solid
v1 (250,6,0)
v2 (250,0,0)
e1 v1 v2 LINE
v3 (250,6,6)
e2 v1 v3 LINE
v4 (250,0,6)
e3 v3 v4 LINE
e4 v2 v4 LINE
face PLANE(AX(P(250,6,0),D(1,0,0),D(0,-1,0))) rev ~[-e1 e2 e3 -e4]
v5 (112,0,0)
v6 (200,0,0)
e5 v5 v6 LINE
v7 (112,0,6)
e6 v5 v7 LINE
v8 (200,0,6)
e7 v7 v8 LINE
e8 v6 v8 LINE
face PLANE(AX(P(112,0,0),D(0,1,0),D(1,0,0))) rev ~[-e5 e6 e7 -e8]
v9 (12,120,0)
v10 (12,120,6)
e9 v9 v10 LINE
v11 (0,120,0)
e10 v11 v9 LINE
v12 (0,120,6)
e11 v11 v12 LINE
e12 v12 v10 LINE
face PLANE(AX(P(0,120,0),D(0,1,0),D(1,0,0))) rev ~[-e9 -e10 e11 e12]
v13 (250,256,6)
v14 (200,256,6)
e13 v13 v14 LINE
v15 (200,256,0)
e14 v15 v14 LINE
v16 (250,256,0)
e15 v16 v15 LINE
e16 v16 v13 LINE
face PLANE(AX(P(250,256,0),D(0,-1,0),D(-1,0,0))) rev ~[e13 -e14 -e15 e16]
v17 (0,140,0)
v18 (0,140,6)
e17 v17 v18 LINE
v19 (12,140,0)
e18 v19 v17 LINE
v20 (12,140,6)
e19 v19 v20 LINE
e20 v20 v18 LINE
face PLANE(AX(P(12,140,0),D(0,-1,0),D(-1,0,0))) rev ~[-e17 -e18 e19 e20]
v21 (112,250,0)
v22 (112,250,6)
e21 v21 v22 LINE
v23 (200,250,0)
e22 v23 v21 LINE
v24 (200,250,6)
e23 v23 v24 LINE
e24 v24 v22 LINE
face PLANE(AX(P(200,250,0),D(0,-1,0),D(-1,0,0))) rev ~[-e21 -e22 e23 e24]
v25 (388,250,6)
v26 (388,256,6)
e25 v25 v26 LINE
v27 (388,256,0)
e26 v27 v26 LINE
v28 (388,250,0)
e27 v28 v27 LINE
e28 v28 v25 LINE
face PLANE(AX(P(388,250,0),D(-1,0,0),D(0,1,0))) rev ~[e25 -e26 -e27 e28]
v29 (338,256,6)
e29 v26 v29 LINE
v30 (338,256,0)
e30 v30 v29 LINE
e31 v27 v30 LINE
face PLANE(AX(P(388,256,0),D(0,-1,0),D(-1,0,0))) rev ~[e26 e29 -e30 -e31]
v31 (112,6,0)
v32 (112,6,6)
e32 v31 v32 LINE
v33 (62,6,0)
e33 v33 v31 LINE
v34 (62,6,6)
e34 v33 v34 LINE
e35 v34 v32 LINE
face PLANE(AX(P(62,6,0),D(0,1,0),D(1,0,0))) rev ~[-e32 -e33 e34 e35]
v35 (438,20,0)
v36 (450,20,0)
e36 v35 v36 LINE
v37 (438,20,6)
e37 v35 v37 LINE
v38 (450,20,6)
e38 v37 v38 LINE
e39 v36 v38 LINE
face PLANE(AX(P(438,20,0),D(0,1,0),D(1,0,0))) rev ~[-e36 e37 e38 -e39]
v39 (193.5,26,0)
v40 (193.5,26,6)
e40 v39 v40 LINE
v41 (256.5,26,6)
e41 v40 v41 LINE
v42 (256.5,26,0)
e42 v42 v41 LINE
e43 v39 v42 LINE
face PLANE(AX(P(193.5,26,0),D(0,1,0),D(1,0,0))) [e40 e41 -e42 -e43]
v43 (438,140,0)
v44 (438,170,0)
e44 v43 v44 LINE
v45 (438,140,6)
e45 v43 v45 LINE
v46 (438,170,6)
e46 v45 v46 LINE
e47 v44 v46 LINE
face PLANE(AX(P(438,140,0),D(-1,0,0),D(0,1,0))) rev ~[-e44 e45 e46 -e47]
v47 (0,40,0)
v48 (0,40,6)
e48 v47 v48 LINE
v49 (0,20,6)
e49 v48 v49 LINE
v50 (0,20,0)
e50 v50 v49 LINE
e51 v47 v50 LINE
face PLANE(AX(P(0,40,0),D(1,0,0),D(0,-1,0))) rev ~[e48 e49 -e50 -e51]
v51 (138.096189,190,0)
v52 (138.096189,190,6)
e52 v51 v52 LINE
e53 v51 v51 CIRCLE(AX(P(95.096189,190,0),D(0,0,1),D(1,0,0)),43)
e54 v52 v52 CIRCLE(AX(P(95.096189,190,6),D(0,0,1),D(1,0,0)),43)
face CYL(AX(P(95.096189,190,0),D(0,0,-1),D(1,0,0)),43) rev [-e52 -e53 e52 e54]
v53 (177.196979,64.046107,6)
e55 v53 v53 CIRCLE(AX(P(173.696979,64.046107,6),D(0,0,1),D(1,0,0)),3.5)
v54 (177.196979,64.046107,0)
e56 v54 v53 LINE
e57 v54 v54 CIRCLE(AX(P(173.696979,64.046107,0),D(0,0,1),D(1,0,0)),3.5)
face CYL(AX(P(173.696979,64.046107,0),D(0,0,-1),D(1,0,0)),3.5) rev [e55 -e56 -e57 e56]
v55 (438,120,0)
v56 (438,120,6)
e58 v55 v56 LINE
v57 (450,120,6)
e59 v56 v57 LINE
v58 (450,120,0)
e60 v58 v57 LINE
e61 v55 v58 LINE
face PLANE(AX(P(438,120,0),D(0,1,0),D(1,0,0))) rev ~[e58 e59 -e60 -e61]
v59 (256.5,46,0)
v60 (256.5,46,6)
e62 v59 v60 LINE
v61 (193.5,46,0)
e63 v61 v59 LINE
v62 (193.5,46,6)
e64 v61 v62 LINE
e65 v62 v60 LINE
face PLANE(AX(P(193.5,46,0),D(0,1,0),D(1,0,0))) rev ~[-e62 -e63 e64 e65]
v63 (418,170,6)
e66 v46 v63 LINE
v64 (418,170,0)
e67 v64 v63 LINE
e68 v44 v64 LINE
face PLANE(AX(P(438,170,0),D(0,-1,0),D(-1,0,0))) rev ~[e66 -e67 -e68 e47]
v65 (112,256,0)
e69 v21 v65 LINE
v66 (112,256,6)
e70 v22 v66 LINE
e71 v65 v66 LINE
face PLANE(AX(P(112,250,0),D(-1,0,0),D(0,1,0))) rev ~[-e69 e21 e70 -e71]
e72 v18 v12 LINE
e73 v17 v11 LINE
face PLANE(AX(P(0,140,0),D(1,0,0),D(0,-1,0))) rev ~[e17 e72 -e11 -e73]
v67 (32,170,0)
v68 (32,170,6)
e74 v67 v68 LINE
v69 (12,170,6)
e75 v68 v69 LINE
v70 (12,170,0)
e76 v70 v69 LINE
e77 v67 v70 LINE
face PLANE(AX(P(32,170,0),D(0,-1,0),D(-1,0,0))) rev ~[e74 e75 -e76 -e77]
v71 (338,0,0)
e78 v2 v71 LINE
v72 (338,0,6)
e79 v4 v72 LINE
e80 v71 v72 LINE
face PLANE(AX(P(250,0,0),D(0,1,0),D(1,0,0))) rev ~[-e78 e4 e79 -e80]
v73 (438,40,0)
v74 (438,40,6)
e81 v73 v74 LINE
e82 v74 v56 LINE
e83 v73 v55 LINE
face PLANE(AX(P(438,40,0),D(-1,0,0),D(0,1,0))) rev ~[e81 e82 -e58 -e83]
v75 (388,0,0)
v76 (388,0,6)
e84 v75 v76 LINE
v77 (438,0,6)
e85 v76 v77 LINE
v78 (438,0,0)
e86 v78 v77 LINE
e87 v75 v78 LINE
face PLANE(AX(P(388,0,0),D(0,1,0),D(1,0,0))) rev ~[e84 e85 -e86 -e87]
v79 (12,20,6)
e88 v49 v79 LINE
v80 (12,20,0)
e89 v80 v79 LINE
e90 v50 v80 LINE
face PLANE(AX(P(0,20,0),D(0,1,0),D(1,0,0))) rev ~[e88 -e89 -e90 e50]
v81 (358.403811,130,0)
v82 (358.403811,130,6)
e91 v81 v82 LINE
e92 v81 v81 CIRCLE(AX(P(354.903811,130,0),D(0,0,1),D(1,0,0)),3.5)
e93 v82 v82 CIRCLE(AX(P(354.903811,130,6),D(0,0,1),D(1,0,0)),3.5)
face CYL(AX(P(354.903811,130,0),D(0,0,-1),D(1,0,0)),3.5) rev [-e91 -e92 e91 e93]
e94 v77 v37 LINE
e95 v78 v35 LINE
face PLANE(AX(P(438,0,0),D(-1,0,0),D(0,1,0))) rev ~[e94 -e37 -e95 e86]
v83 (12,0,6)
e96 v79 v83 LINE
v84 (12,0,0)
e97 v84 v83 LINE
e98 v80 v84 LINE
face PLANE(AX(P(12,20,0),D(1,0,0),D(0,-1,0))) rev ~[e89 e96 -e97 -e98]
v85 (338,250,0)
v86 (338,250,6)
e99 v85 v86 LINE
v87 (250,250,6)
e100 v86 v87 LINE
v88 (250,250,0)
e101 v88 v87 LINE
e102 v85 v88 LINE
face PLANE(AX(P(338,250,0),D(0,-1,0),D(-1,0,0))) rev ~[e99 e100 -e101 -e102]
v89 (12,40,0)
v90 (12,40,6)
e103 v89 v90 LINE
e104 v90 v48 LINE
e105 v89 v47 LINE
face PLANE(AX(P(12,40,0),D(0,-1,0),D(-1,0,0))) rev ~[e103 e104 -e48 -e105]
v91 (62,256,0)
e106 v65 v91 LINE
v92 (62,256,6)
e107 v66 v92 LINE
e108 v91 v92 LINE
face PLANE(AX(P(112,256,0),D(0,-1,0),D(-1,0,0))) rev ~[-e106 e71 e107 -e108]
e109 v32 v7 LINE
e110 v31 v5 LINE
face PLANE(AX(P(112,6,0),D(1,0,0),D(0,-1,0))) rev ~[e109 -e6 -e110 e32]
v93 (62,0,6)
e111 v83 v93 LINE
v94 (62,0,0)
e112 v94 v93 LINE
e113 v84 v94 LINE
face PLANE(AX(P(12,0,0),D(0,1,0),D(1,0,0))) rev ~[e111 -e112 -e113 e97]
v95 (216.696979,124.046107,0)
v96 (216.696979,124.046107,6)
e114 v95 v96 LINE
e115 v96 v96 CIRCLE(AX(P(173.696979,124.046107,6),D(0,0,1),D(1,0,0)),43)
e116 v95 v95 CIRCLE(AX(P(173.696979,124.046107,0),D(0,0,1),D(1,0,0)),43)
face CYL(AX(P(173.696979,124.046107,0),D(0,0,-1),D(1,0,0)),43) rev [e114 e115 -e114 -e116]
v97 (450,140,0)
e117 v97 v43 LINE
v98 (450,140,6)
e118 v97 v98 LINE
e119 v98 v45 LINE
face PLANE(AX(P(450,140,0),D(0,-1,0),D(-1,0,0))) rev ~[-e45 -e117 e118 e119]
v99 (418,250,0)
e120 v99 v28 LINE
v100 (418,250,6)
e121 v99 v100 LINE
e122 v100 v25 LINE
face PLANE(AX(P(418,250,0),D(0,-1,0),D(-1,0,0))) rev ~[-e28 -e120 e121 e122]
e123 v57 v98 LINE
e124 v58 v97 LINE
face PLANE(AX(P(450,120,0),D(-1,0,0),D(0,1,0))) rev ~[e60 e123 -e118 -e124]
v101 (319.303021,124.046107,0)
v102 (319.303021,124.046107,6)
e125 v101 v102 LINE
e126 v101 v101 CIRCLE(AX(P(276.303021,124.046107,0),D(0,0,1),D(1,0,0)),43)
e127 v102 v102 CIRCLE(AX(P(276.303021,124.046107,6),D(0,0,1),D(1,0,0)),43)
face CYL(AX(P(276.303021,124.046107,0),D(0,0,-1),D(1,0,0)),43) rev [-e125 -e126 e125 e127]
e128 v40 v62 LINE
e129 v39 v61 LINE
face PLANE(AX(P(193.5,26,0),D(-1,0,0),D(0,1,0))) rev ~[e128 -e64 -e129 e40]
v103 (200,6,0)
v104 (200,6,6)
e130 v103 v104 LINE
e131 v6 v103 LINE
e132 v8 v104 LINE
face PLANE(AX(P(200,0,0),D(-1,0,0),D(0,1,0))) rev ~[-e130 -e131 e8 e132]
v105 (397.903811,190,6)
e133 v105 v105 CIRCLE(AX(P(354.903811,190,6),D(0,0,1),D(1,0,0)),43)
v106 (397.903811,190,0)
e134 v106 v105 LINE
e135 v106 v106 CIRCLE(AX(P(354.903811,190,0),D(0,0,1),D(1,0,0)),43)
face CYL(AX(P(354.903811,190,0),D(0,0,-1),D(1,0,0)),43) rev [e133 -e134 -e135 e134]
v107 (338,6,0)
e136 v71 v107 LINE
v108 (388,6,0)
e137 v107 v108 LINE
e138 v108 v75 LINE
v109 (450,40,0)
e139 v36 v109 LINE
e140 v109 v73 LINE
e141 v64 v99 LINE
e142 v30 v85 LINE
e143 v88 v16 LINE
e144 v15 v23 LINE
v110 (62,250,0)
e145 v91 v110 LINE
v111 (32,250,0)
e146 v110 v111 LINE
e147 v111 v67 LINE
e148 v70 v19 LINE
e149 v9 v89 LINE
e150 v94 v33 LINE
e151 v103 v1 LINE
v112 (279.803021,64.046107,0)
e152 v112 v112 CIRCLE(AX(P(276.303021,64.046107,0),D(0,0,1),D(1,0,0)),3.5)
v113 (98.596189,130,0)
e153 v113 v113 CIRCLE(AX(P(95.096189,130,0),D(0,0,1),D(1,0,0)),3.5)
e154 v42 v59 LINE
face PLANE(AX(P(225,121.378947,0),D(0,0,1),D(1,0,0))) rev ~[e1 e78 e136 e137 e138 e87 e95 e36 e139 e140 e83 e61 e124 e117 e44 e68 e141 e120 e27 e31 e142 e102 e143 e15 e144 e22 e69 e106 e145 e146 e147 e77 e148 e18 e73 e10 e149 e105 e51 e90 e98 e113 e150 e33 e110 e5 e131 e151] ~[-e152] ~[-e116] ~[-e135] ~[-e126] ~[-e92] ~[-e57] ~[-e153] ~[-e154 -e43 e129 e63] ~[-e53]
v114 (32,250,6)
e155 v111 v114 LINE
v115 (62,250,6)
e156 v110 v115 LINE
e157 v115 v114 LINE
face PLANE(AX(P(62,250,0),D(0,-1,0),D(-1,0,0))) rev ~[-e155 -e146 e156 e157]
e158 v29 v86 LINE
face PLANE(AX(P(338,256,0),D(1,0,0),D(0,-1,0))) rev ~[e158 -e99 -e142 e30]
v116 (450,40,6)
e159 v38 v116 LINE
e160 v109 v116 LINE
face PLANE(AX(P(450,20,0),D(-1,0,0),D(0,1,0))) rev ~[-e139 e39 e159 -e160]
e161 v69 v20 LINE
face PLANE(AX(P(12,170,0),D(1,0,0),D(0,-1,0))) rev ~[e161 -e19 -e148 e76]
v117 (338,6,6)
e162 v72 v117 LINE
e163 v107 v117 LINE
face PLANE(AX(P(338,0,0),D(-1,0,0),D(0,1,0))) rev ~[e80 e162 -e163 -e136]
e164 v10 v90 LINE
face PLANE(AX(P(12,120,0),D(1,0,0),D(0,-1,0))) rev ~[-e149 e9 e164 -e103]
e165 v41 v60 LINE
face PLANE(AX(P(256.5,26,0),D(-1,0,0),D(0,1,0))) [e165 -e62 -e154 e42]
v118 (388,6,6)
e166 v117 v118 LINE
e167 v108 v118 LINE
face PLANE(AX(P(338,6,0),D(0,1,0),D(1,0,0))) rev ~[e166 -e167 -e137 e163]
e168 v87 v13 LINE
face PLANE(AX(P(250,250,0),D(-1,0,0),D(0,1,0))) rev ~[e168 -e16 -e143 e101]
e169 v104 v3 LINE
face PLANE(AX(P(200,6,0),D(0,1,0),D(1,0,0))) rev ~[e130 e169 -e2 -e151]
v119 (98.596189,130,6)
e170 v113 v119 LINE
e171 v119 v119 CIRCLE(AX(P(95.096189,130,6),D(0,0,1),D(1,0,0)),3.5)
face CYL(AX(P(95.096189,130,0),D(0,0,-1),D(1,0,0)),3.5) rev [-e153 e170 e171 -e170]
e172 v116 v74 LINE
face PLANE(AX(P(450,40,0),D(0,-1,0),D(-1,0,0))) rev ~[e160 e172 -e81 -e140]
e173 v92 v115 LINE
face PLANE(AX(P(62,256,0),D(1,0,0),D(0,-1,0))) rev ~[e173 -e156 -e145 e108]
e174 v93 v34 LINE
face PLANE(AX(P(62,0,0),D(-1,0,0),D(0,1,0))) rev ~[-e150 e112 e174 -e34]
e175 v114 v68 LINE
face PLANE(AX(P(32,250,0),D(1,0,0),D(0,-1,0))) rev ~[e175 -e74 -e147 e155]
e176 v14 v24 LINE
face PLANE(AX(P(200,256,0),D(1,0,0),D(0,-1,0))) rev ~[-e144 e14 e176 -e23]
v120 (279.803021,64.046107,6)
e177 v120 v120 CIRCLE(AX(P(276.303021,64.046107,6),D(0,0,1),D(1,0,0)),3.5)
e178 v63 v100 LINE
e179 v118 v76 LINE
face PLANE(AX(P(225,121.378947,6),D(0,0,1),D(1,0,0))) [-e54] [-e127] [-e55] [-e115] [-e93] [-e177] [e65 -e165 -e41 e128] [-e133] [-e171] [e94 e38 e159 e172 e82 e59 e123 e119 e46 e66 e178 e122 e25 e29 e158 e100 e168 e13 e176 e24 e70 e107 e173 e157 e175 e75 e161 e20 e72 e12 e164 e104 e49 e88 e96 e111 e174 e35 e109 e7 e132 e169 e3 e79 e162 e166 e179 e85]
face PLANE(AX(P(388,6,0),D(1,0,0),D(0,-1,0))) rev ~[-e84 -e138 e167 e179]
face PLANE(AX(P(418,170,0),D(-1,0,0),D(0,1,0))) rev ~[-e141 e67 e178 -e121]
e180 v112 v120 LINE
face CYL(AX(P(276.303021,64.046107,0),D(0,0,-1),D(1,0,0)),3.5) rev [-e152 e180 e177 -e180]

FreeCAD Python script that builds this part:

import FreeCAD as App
import Part
import Sketcher


def add_polygon(sketch, points):
    """Adds a closed chain of lines whose ends are joined by coincident constraints."""
    first, n = sketch.GeometryCount, len(points)
    for a, b in zip(points, points[1:] + points[:1]):
        sketch.addGeometry(Part.LineSegment(App.Vector(*a, 0), App.Vector(*b, 0)), False)
    for i in range(n):
        sketch.addConstraint(Sketcher.Constraint("Coincident", first + i, 2, first + (i + 1) % n, 1))

doc = App.newDocument("Part")
params = doc.addObject("Spreadsheet::Sheet", "Params")
for row, (alias, value) in enumerate([
    ("sketch1_diameter", "7 mm"),
    ("sketch1_diameter2", "86 mm"),
    ("sketch1_width", "12 mm"),
    ("sketch1_width2", "20 mm"),
    ("sketch1_width3", "30 mm"),
    ("pad1_length", "6 mm"),
], start=1):
    params.set(f"A{row}", alias)
    params.set(f"B{row}", "=" + value)
    params.setAlias(f"B{row}", alias)

body = doc.addObject("PartDesign::Body", "Body")

sketch1 = body.newObject("Sketcher::SketchObject", "Sketch")
sketch1.AttachmentSupport = (doc.getObject("XY_Plane"), [""])
sketch1.MapMode = "FlatFace"
add_polygon(sketch1, [(450, 20), (450, 40), (438, 40), (438, 120), (450, 120), (450, 140), (438, 140), (438, 170), (418, 170), (418, 250), (388, 250), (388, 256), (338, 256), (338, 250), (250, 250), (250, 256), (200, 256), (200, 250), (112, 250), (112, 256), (62, 256), (62, 250), (32, 250), (32, 170), (12, 170), (12, 140), (0, 140), (0, 120), (12, 120), (12, 40), (0, 40), (0, 20), (12, 20), (12, 0), (62, 0), (62, 6), (112, 6), (112, 0), (200, 0), (200, 6), (250, 6), (250, 0), (338, 0), (338, 6), (388, 6), (388, 0), (438, 0), (438, 20)])
sketch1.addGeometry(Part.Circle(App.Vector(173.696979, 64.046107, 0), App.Vector(0, 0, 1), 3.5), False)
sketch1.addGeometry(Part.Circle(App.Vector(173.696979, 124.046107, 0), App.Vector(0, 0, 1), 43), False)
add_polygon(sketch1, [(256.5, 26), (193.5, 26), (193.5, 46), (256.5, 46)])
sketch1.addGeometry(Part.Circle(App.Vector(276.303021, 64.046107, 0), App.Vector(0, 0, 1), 3.5), False)
sketch1.addGeometry(Part.Circle(App.Vector(276.303021, 124.046107, 0), App.Vector(0, 0, 1), 43), False)
sketch1.addGeometry(Part.Circle(App.Vector(95.096189, 130, 0), App.Vector(0, 0, 1), 3.5), False)
sketch1.addGeometry(Part.Circle(App.Vector(95.096189, 190, 0), App.Vector(0, 0, 1), 43), False)
sketch1.addGeometry(Part.Circle(App.Vector(354.903811, 130, 0), App.Vector(0, 0, 1), 3.5), False)
sketch1.addGeometry(Part.Circle(App.Vector(354.903811, 190, 0), App.Vector(0, 0, 1), 43), False)
sketch1.addConstraint(Sketcher.Constraint("Vertical", 0))
sketch1.addConstraint(Sketcher.Constraint("Horizontal", 1))
sketch1.addConstraint(Sketcher.Constraint("Vertical", 2))
sketch1.addConstraint(Sketcher.Constraint("Horizontal", 3))
sketch1.addConstraint(Sketcher.Constraint("Vertical", 4))
sketch1.addConstraint(Sketcher.Constraint("Horizontal", 5))
sketch1.addConstraint(Sketcher.Constraint("Vertical", 6))
sketch1.addConstraint(Sketcher.Constraint("Horizontal", 7))
sketch1.addConstraint(Sketcher.Constraint("Vertical", 8))
sketch1.addConstraint(Sketcher.Constraint("Horizontal", 9))
sketch1.addConstraint(Sketcher.Constraint("Vertical", 10))
sketch1.addConstraint(Sketcher.Constraint("Horizontal", 11))
sketch1.addConstraint(Sketcher.Constraint("Vertical", 12))
sketch1.addConstraint(Sketcher.Constraint("Horizontal", 13))
sketch1.addConstraint(Sketcher.Constraint("Vertical", 14))
sketch1.addConstraint(Sketcher.Constraint("Horizontal", 15))
sketch1.addConstraint(Sketcher.Constraint("Vertical", 16))
sketch1.addConstraint(Sketcher.Constraint("Horizontal", 17))
sketch1.addConstraint(Sketcher.Constraint("Vertical", 18))
sketch1.addConstraint(Sketcher.Constraint("Horizontal", 19))
sketch1.addConstraint(Sketcher.Constraint("Vertical", 20))
sketch1.addConstraint(Sketcher.Constraint("Horizontal", 21))
sketch1.addConstraint(Sketcher.Constraint("Vertical", 22))
sketch1.addConstraint(Sketcher.Constraint("Horizontal", 23))
sketch1.addConstraint(Sketcher.Constraint("Vertical", 24))
sketch1.addConstraint(Sketcher.Constraint("Horizontal", 25))
sketch1.addConstraint(Sketcher.Constraint("Vertical", 26))
sketch1.addConstraint(Sketcher.Constraint("Horizontal", 27))
sketch1.addConstraint(Sketcher.Constraint("Vertical", 28))
sketch1.addConstraint(Sketcher.Constraint("Horizontal", 29))
sketch1.addConstraint(Sketcher.Constraint("Vertical", 30))
sketch1.addConstraint(Sketcher.Constraint("Horizontal", 31))
sketch1.addConstraint(Sketcher.Constraint("Vertical", 32))
sketch1.addConstraint(Sketcher.Constraint("Horizontal", 33))
sketch1.addConstraint(Sketcher.Constraint("Vertical", 34))
sketch1.addConstraint(Sketcher.Constraint("Horizontal", 35))
sketch1.addConstraint(Sketcher.Constraint("Vertical", 36))
sketch1.addConstraint(Sketcher.Constraint("Horizontal", 37))
sketch1.addConstraint(Sketcher.Constraint("Vertical", 38))
sketch1.addConstraint(Sketcher.Constraint("Horizontal", 39))
sketch1.addConstraint(Sketcher.Constraint("Vertical", 40))
sketch1.addConstraint(Sketcher.Constraint("Horizontal", 41))
sketch1.addConstraint(Sketcher.Constraint("Vertical", 42))
sketch1.addConstraint(Sketcher.Constraint("Horizontal", 43))
sketch1.addConstraint(Sketcher.Constraint("Vertical", 44))
sketch1.addConstraint(Sketcher.Constraint("Horizontal", 45))
sketch1.addConstraint(Sketcher.Constraint("Vertical", 46))
sketch1.addConstraint(Sketcher.Constraint("Horizontal", 47))
sketch1.addConstraint(Sketcher.Constraint("Horizontal", 50))
sketch1.addConstraint(Sketcher.Constraint("Vertical", 51))
sketch1.addConstraint(Sketcher.Constraint("Horizontal", 52))
sketch1.addConstraint(Sketcher.Constraint("Vertical", 53))
sketch1.addConstraint(Sketcher.Constraint("Equal", 48, 54))
sketch1.addConstraint(Sketcher.Constraint("Equal", 49, 55))
sketch1.addConstraint(Sketcher.Constraint("Equal", 54, 56))
sketch1.addConstraint(Sketcher.Constraint("Equal", 55, 57))
sketch1.addConstraint(Sketcher.Constraint("Equal", 56, 58))
sketch1.addConstraint(Sketcher.Constraint("Equal", 57, 59))
sketch1.addConstraint(Sketcher.Constraint("PointOnObject", 25, 2, -2))
sketch1.addConstraint(Sketcher.Constraint("PointOnObject", 29, 2, -2))
sketch1.addConstraint(Sketcher.Constraint("PointOnObject", 32, 2, -1))
sketch1.addConstraint(Sketcher.Constraint("PointOnObject", 36, 2, -1))
sketch1.addConstraint(Sketcher.Constraint("PointOnObject", 40, 2, -1))
sketch1.addConstraint(Sketcher.Constraint("PointOnObject", 44, 2, -1))
sketch1.addConstraint(Sketcher.Constraint("Horizontal", 48, 3, 54, 3))
sketch1.addConstraint(Sketcher.Constraint("Horizontal", 49, 3, 55, 3))
sketch1.addConstraint(Sketcher.Constraint("Horizontal", 56, 3, 58, 3))
sketch1.addConstraint(Sketcher.Constraint("Horizontal", 57, 3, 59, 3))
sketch1.addConstraint(Sketcher.Constraint("Horizontal", 9, 2, 12, 2))
sketch1.addConstraint(Sketcher.Constraint("Horizontal", 11, 2, 14, 2))
sketch1.addConstraint(Sketcher.Constraint("Horizontal", 13, 2, 16, 2))
sketch1.addConstraint(Sketcher.Constraint("Horizontal", 15, 2, 18, 2))
sketch1.addConstraint(Sketcher.Constraint("Horizontal", 17, 2, 20, 2))
sketch1.addConstraint(Sketcher.Constraint("Horizontal", 7, 2, 22, 2))
sketch1.addConstraint(Sketcher.Constraint("Horizontal", 5, 2, 24, 2))
sketch1.addConstraint(Sketcher.Constraint("Horizontal", 3, 2, 26, 2))
sketch1.addConstraint(Sketcher.Constraint("Horizontal", 1, 2, 28, 2))
sketch1.addConstraint(Sketcher.Constraint("Horizontal", 35, 2, 38, 2))
sketch1.addConstraint(Sketcher.Constraint("Horizontal", 39, 2, 42, 2))
sketch1.addConstraint(Sketcher.Constraint("Horizontal", 31, 2, 46, 2))
sketch1.addConstraint(Sketcher.Constraint("Vertical", 48, 3, 49, 3))
sketch1.addConstraint(Sketcher.Constraint("Vertical", 54, 3, 55, 3))
sketch1.addConstraint(Sketcher.Constraint("Vertical", 56, 3, 57, 3))
sketch1.addConstraint(Sketcher.Constraint("Vertical", 58, 3, 59, 3))
sketch1.addConstraint(Sketcher.Constraint("Vertical", 0, 2, 3, 2))
sketch1.addConstraint(Sketcher.Constraint("Vertical", 2, 2, 5, 2))
sketch1.addConstraint(Sketcher.Constraint("Vertical", 24, 2, 27, 2))
sketch1.addConstraint(Sketcher.Constraint("Vertical", 28, 2, 31, 2))
sketch1.addConstraint(Sketcher.Constraint("Vertical", 20, 2, 33, 2))
sketch1.addConstraint(Sketcher.Constraint("Vertical", 18, 2, 35, 2))
sketch1.addConstraint(Sketcher.Constraint("Vertical", 16, 2, 37, 2))
sketch1.addConstraint(Sketcher.Constraint("Vertical", 14, 2, 39, 2))
sketch1.addConstraint(Sketcher.Constraint("Vertical", 12, 2, 41, 2))
sketch1.addConstraint(Sketcher.Constraint("Vertical", 10, 2, 43, 2))
sketch1.addConstraint(Sketcher.Constraint("Vertical", 6, 2, 45, 2))
sketch1.addConstraint(Sketcher.Constraint("Equal", 11, 15))
sketch1.addConstraint(Sketcher.Constraint("Equal", 13, 17))
sketch1.addConstraint(Sketcher.Constraint("Equal", 15, 19))
sketch1.addConstraint(Sketcher.Constraint("Equal", 9, 21))
sketch1.addConstraint(Sketcher.Constraint("Equal", 7, 23))
sketch1.addConstraint(Sketcher.Constraint("Equal", 5, 25))
sketch1.addConstraint(Sketcher.Constraint("Equal", 19, 33))
sketch1.addConstraint(Sketcher.Constraint("Equal", 23, 0))
sketch1.addConstraint(Sketcher.Constraint("Equal", 0, 4))
sketch1.addConstraint(Sketcher.Constraint("Equal", 21, 6))
sketch1.addConstraint(Sketcher.Constraint("Equal", 2, 8))
sketch1.addConstraint(Sketcher.Constraint("Equal", 30, 32))
sketch1.addConstraint(Sketcher.Constraint("Equal", 20, 34))
sketch1.addConstraint(Sketcher.Constraint("Equal", 46, 51))
sketch1.addConstraint(Sketcher.Constraint("Diameter", 48, 7.0))
sketch1.addConstraint(Sketcher.Constraint("Diameter", 49, 86.0))
sketch1.addConstraint(Sketcher.Constraint("DistanceX", 1, 2, 1, 1, 12.0))
sketch1.addConstraint(Sketcher.Constraint("DistanceX", 7, 2, 7, 1, 20.0))
sketch1.addConstraint(Sketcher.Constraint("DistanceX", 9, 2, 9, 1, 30.0))
sketch1.addConstraint(Sketcher.Constraint("DistanceX", 13, 2, 13, 1, 88.0))
sketch1.addConstraint(Sketcher.Constraint("DistanceX", 50, 2, 50, 1, 63.0))
sketch1.addConstraint(Sketcher.Constraint("DistanceY", 2, 1, 2, 2, 80.0))
sketch1.addConstraint(Sketcher.Constraint("DistanceY", 10, 1, 10, 2, 6.0))
sketch1.addConstraint(Sketcher.Constraint("DistanceY", -1, 1, 56, 3, 130.0))
sketch1.addConstraint(Sketcher.Constraint("DistanceY", -1, 1, 57, 3, 190.0))
sketch1.addConstraint(Sketcher.Constraint("DistanceY", -1, 1, 50, 2, 26.0))
sketch1.addConstraint(Sketcher.Constraint("DistanceY", 48, 3, 49, 3, 60.0))
sketch1.addConstraint(Sketcher.Constraint("DistanceX", -1, 1, 50, 2, 193.5))
sketch1.addConstraint(Sketcher.Constraint("DistanceX", -1, 1, 48, 3, 173.696979))
sketch1.addConstraint(Sketcher.Constraint("DistanceX", -1, 1, 54, 3, 276.303021))
sketch1.addConstraint(Sketcher.Constraint("DistanceX", -1, 1, 56, 3, 95.096189))
sketch1.addConstraint(Sketcher.Constraint("DistanceX", -1, 1, 58, 3, 354.903811))
sketch1.addConstraint(Sketcher.Constraint("DistanceY", -1, 1, 48, 3, 64.046107))
sketch1.setExpression("Constraints[161]", "Params.sketch1_diameter")
sketch1.setExpression("Constraints[162]", "Params.sketch1_diameter2")
sketch1.setExpression("Constraints[163]", "Params.sketch1_width")
sketch1.setExpression("Constraints[164]", "Params.sketch1_width2")
sketch1.setExpression("Constraints[165]", "Params.sketch1_width3")
pad1 = body.newObject("PartDesign::Pad", "Pad")
pad1.Profile = sketch1
pad1.setExpression("Length", "Params.pad1_length")

doc.recompute()
